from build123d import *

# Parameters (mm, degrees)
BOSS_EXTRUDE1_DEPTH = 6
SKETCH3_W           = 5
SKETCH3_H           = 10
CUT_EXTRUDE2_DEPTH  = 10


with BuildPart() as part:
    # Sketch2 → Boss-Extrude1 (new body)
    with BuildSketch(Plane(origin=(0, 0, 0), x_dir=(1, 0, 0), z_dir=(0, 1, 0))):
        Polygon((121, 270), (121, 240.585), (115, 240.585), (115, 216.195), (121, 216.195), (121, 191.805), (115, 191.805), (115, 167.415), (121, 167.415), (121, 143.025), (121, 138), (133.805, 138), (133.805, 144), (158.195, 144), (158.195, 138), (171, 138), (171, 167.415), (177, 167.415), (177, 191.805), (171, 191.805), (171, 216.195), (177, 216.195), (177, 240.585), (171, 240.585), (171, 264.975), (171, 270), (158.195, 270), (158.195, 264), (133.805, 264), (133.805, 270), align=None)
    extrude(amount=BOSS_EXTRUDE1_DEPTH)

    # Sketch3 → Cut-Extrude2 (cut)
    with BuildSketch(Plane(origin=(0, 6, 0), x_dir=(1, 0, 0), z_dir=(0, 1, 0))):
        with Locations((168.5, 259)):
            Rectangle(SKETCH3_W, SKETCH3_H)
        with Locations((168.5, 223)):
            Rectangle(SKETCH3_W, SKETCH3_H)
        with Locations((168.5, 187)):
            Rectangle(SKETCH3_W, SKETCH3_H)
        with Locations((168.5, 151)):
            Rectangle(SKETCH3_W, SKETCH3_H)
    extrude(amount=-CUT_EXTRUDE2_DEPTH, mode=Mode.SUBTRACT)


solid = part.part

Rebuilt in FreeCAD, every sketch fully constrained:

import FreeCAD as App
import Part
import Sketcher
Q = App.Units.Quantity


def add_polygon(sketch, points):
    """Adds a closed chain of lines whose ends are joined by coincident constraints."""
    first, n = sketch.GeometryCount, len(points)
    for a, b in zip(points, points[1:] + points[:1]):
        sketch.addGeometry(Part.LineSegment(App.Vector(*a, 0), App.Vector(*b, 0)), False)
    for i in range(n):
        sketch.addConstraint(Sketcher.Constraint("Coincident", first + i, 2, first + (i + 1) % n, 1))

doc = App.newDocument("Part")
body = doc.addObject("PartDesign::Body", "Body")

# Sketch on XZ plane
sketch1 = body.newObject("Sketcher::SketchObject", "Sketch")
sketch1.AttachmentSupport = (doc.getObject("XZ_Plane"), [""])
sketch1.MapMode = "FlatFace"
add_polygon(sketch1, [(121, -270), (121, -241), (115, -241), (115, -216), (121, -216), (121, -192), (115, -192), (115, -167), (121, -167), (121, -138), (134, -138), (134, -144), (158, -144), (158, -138), (171, -138), (171, -167), (177, -167), (177, -192), (171, -192), (171, -216), (177, -216), (177, -241), (171, -241), (171, -270), (158, -270), (158, -264), (134, -264), (134, -270)])  # lines 0-27
sketch1.addConstraint([
    Sketcher.Constraint("Vertical", 0),
    Sketcher.Constraint("Horizontal", 1),
    Sketcher.Constraint("Vertical", 2),
    Sketcher.Constraint("Horizontal", 3),
    Sketcher.Constraint("Vertical", 4),
    Sketcher.Constraint("Horizontal", 5),
    Sketcher.Constraint("Vertical", 6),
    Sketcher.Constraint("Horizontal", 7),
    Sketcher.Constraint("Vertical", 8),
    Sketcher.Constraint("Horizontal", 9),
    Sketcher.Constraint("Vertical", 10),
    Sketcher.Constraint("Horizontal", 11),
    Sketcher.Constraint("Vertical", 12),
    Sketcher.Constraint("Horizontal", 13),
    Sketcher.Constraint("Vertical", 14),
    Sketcher.Constraint("Horizontal", 15),
    Sketcher.Constraint("Vertical", 16),
    Sketcher.Constraint("Horizontal", 17),
    Sketcher.Constraint("Vertical", 18),
    Sketcher.Constraint("Horizontal", 19),
    Sketcher.Constraint("Vertical", 20),
    Sketcher.Constraint("Horizontal", 21),
    Sketcher.Constraint("Vertical", 22),
    Sketcher.Constraint("Horizontal", 23),
    Sketcher.Constraint("Vertical", 24),
    Sketcher.Constraint("Horizontal", 25),
    Sketcher.Constraint("Vertical", 26),
    Sketcher.Constraint("Horizontal", 27),
    Sketcher.Constraint("Horizontal", 9, 2, 12, 2),
    Sketcher.Constraint("Horizontal", 7, 2, 14, 2),
    Sketcher.Constraint("Horizontal", 5, 2, 16, 2),
    Sketcher.Constraint("Horizontal", 3, 2, 18, 2),
    Sketcher.Constraint("Horizontal", 1, 2, 20, 2),
    Sketcher.Constraint("Horizontal", 23, 2, 26, 2),
    Sketcher.Constraint("Vertical", 0, 2, 3, 2),
    Sketcher.Constraint("Vertical", 2, 2, 5, 2),
    Sketcher.Constraint("Vertical", 4, 2, 7, 2),
    Sketcher.Constraint("Vertical", 14, 2, 17, 2),
    Sketcher.Constraint("Vertical", 16, 2, 19, 2),
    Sketcher.Constraint("Vertical", 18, 2, 21, 2),
    Sketcher.Constraint("Vertical", 12, 2, 23, 2),
    Sketcher.Constraint("Vertical", 10, 2, 25, 2),
    Sketcher.Constraint("Equal", 9, 13),
    Sketcher.Constraint("Equal", 7, 15),
    Sketcher.Constraint("Equal", 25, 2),
    Sketcher.Constraint("Equal", 2, 4),
    Sketcher.Constraint("Equal", 4, 6),
    Sketcher.Constraint("Equal", 0, 8),
    Sketcher.Constraint("Equal", 21, 10),
    Sketcher.Constraint("Equal", 12, 24),
    Sketcher.Constraint("DistanceX", 1, 2, 1, 1, Q("6 mm")),
    Sketcher.Constraint("DistanceX", -1, 1, 0, 2, Q("121 mm")),
    Sketcher.Constraint("DistanceY", 8, 2, -1, 1, Q("138 mm")),
    Sketcher.Constraint("DistanceX", -1, 1, 13, 2, Q("171 mm")),
    Sketcher.Constraint("DistanceY", 22, 2, -1, 1, Q("270 mm")),
    Sketcher.Constraint("DistanceX", 11, 1, 11, 2, Q("24.39 mm")),
])
pad1 = body.newObject("PartDesign::Pad", "Pad")
pad1.Profile = sketch1
pad1.Length = 6
pad1.Reversed = True

# Sketch on XZ plane
sketch2 = body.newObject("Sketcher::SketchObject", "Sketch001")
sketch2.AttachmentSupport = (doc.getObject("XZ_Plane"), [""])
sketch2.MapMode = "FlatFace"
sketch2.AttachmentOffset = App.Placement(App.Vector(0, 0, -6), App.Rotation())
add_polygon(sketch2, [(166, -264), (166, -254), (171, -254), (171, -264)])  # lines 0-3
add_polygon(sketch2, [(166, -228), (166, -218), (171, -218), (171, -228)])  # lines 4-7
add_polygon(sketch2, [(166, -192), (166, -182), (171, -182), (171, -192)])  # lines 8-11
add_polygon(sketch2, [(166, -156), (166, -146), (171, -146), (171, -156)])  # lines 12-15
sketch2.addConstraint([
    Sketcher.Constraint("Vertical", 0),
    Sketcher.Constraint("Horizontal", 1),
    Sketcher.Constraint("Vertical", 2),
    Sketcher.Constraint("Horizontal", 3),
    Sketcher.Constraint("Vertical", 4),
    Sketcher.Constraint("Horizontal", 5),
    Sketcher.Constraint("Vertical", 6),
    Sketcher.Constraint("Horizontal", 7),
    Sketcher.Constraint("Vertical", 8),
    Sketcher.Constraint("Horizontal", 9),
    Sketcher.Constraint("Vertical", 10),
    Sketcher.Constraint("Horizontal", 11),
    Sketcher.Constraint("Vertical", 12),
    Sketcher.Constraint("Horizontal", 13),
    Sketcher.Constraint("Vertical", 14),
    Sketcher.Constraint("Horizontal", 15),
    Sketcher.Constraint("Vertical", 3, 2, 4, 2),
    Sketcher.Constraint("Vertical", 2, 2, 5, 2),
    Sketcher.Constraint("Vertical", 7, 2, 8, 2),
    Sketcher.Constraint("Vertical", 6, 2, 9, 2),
    Sketcher.Constraint("Vertical", 11, 2, 12, 2),
    Sketcher.Constraint("Vertical", 10, 2, 13, 2),
    Sketcher.Constraint("Equal", 2, 4),
    Sketcher.Constraint("Equal", 6, 8),
    Sketcher.Constraint("Equal", 10, 12),
    Sketcher.Constraint("DistanceX", 1, 1, 1, 2, Q("5 mm")),
    Sketcher.Constraint("DistanceY", 0, 1, 0, 2, Q("10 mm")),
    Sketcher.Constraint("DistanceX", -1, 1, 0, 2, Q("166 mm")),
    Sketcher.Constraint("DistanceY", 0, 2, -1, 1, Q("254 mm")),
    Sketcher.Constraint("DistanceY", 4, 2, -1, 1, Q("218 mm")),
    Sketcher.Constraint("DistanceY", 8, 2, -1, 1, Q("182 mm")),
    Sketcher.Constraint("DistanceY", 12, 2, -1, 1, Q("146 mm")),
])
pocket1 = body.newObject("PartDesign::Pocket", "Pocket")
pocket1.Profile = sketch2
pocket1.Length = 10
pocket1.Reversed = True

doc.recompute()
